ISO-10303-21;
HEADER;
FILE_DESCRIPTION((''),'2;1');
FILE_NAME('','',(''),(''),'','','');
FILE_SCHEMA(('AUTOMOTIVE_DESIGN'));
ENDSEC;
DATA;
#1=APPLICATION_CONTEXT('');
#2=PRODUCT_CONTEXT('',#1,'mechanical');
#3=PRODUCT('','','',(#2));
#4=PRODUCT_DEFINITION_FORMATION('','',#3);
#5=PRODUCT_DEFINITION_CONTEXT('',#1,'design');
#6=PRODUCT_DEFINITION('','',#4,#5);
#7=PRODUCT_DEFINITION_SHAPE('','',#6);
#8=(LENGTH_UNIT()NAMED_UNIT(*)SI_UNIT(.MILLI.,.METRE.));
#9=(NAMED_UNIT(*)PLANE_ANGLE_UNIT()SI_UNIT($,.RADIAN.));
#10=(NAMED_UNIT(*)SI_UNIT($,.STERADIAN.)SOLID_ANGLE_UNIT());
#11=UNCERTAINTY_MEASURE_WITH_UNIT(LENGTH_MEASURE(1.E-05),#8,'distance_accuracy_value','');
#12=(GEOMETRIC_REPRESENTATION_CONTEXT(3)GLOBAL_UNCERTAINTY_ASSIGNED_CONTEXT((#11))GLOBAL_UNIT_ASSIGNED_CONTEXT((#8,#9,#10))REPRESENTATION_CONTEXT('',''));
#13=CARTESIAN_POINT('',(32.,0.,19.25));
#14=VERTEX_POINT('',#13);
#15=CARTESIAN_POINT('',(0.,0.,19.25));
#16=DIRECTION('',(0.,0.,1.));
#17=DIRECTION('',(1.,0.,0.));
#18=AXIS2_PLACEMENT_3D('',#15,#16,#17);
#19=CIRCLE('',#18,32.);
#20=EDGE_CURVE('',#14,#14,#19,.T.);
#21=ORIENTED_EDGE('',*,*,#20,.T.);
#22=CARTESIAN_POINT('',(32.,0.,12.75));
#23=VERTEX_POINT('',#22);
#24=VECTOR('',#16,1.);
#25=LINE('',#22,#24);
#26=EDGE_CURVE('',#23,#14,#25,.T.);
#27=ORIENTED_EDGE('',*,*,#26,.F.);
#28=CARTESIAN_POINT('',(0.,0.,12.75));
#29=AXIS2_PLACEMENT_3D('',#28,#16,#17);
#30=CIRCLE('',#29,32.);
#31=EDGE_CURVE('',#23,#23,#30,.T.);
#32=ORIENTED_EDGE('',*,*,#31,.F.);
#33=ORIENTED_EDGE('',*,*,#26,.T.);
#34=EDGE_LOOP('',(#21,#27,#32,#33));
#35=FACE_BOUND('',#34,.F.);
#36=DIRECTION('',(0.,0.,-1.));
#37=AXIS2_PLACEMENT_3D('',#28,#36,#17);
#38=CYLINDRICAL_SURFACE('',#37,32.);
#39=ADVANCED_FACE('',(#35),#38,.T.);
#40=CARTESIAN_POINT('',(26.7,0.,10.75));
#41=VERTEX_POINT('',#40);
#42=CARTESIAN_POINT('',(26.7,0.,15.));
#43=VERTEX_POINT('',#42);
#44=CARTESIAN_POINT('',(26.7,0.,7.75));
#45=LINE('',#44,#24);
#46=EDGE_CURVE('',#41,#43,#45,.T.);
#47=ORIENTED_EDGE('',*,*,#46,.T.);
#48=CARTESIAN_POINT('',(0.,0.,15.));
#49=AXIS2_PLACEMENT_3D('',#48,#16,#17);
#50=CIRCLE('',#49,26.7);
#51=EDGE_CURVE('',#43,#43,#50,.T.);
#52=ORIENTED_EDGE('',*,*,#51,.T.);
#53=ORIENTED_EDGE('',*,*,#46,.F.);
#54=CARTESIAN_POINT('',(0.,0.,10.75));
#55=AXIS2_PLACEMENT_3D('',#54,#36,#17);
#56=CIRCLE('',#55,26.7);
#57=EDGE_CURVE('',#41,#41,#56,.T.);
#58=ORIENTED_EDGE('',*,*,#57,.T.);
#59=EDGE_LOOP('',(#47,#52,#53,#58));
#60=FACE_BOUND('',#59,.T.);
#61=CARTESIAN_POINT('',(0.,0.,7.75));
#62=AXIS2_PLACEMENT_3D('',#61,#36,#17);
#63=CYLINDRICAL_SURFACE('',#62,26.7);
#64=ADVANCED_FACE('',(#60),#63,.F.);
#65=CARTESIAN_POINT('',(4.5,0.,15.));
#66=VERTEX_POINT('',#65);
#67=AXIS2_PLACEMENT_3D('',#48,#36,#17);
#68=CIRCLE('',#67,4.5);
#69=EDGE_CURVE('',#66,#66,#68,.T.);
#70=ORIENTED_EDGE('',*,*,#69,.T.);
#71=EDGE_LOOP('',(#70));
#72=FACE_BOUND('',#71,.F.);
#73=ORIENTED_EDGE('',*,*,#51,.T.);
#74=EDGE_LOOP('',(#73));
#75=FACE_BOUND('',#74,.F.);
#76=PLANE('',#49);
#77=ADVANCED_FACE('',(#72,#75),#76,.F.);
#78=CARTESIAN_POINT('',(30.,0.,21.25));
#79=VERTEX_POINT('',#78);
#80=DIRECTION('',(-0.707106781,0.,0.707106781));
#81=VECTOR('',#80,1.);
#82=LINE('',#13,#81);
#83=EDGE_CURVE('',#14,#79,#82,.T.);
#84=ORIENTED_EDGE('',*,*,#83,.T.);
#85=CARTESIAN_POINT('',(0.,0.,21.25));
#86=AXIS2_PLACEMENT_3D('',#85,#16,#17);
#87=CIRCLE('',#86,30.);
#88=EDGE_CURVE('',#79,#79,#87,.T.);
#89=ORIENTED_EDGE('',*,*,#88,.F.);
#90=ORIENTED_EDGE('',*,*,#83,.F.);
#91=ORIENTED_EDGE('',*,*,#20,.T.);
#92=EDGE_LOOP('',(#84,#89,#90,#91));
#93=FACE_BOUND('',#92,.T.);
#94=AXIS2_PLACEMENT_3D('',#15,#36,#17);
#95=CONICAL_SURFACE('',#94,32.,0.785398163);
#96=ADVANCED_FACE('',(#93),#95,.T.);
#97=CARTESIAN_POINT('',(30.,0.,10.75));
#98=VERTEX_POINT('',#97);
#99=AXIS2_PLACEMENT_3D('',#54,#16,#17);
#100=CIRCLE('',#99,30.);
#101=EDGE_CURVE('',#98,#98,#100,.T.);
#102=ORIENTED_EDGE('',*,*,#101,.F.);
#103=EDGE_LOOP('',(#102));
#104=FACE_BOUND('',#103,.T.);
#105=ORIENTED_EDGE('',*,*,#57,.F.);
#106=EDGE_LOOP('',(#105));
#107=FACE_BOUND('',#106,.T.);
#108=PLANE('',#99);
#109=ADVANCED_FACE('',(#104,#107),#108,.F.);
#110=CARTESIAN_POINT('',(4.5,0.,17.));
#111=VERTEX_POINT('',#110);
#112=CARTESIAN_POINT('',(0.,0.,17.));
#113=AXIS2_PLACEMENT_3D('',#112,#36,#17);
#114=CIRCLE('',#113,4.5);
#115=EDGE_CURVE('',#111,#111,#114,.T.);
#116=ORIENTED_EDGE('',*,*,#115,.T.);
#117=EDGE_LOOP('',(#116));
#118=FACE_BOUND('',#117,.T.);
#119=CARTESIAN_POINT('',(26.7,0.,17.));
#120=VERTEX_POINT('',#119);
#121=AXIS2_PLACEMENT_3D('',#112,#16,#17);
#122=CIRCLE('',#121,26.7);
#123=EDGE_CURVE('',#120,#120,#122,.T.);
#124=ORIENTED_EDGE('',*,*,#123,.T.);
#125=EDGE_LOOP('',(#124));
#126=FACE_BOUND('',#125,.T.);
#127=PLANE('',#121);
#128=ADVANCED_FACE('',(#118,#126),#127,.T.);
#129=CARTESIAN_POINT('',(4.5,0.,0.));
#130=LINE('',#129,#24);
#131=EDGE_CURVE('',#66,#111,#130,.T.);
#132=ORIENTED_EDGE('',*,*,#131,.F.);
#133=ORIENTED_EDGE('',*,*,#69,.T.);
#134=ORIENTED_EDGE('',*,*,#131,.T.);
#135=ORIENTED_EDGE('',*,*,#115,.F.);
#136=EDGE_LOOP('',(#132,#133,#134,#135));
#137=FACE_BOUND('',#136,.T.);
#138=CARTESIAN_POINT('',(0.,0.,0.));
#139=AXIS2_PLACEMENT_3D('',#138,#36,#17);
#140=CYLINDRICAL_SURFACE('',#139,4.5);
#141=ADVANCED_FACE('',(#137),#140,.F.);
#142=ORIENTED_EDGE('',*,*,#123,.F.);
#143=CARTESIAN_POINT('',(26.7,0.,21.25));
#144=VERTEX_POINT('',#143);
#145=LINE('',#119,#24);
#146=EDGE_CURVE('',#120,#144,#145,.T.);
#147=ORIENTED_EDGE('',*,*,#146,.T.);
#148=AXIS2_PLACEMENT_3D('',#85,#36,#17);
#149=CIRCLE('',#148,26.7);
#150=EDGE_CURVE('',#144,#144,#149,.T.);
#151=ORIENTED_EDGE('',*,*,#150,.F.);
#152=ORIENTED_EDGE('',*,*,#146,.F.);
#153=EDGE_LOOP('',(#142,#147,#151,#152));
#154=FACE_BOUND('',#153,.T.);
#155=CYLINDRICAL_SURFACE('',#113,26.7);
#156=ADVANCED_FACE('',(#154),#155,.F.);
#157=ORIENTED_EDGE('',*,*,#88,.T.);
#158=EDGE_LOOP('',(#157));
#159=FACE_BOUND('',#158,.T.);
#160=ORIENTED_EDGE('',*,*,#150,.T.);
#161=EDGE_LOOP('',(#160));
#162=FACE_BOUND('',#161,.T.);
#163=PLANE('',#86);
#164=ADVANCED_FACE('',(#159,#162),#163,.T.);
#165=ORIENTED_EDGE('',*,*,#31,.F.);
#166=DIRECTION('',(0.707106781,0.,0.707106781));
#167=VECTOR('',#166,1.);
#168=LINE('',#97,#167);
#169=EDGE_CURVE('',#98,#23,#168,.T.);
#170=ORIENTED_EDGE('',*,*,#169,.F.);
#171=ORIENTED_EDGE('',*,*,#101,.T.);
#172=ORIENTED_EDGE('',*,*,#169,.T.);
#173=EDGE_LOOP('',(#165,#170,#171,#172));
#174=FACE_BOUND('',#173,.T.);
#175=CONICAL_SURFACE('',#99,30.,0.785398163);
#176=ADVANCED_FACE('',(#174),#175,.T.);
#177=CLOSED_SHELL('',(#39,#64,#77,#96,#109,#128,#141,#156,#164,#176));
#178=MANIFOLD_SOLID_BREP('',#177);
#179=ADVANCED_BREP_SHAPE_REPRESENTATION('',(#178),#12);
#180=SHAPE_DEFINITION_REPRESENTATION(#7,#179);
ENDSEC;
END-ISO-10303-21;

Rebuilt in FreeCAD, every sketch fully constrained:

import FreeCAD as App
import Part
import Sketcher

V = App.Vector
Q = App.Units.Quantity

doc = App.newDocument("Part")
body = doc.addObject("PartDesign::Body", "Body")

sketch1 = body.newObject("Sketcher::SketchObject", "Sketch")
sketch1.AttachmentSupport = (doc.getObject("XY_Plane"), [""])
sketch1.MapMode = "FlatFace"
sketch1.AttachmentOffset = App.Placement(V(0, 0, 7.75), App.Rotation())
sketch1.addGeometry(Part.Circle(V(0, 0, 0), V(0, 0, 1), 26.7), False)
sketch1.addConstraint([
    Sketcher.Constraint("Coincident", 0, 3, -1, 1),
    Sketcher.Constraint("Diameter", 0, Q("53.4 mm")),
])
pad1 = body.newObject("PartDesign::Pad", "Pad")
pad1.Profile = sketch1
pad1.Length = 7.25
body2 = doc.addObject("PartDesign::Body", "Body001")

sketch2 = body2.newObject("Sketcher::SketchObject", "Sketch001")
sketch2.AttachmentSupport = (doc.getObject("XY_Plane001"), [""])
sketch2.MapMode = "FlatFace"
sketch2.addGeometry(Part.Circle(V(0, 0, 0), V(0, 0, 1), 4.5), False)
sketch2.addConstraint([
    Sketcher.Constraint("Coincident", 0, 3, -1, 1),
    Sketcher.Constraint("Diameter", 0, Q("9 mm")),
])
pad2 = body2.newObject("PartDesign::Pad", "Pad001")
pad2.Profile = sketch2
pad2.Length = 32
body3 = doc.addObject("PartDesign::Body", "Body002")
body3.AllowCompound = True

sketch3 = body3.newObject("Sketcher::SketchObject", "Sketch002")
sketch3.AttachmentSupport = (doc.getObject("XY_Plane002"), [""])
sketch3.MapMode = "FlatFace"
sketch3.AttachmentOffset = App.Placement(V(0, 0, 17), App.Rotation())
sketch3.addGeometry(Part.Circle(V(0, 0, 0), V(0, 0, 1), 26.7), False)
sketch3.addConstraint([
    Sketcher.Constraint("Coincident", 0, 3, -1, 1),
    Sketcher.Constraint("Diameter", 0, Q("53.4 mm")),
])
pad3 = body3.newObject("PartDesign::Pad", "Pad002")
pad3.Profile = sketch3
pad3.Length = 7.25
doc.recompute()

boolean = body3.newObject("PartDesign::Boolean", "Boolean")
boolean.Type = "Fuse"
boolean.addObjects([body])
doc.recompute()

boolean2 = body3.newObject("PartDesign::Boolean", "Boolean001")
boolean2.Type = "Fuse"
boolean2.addObjects([body2])
body4 = doc.addObject("PartDesign::Body", "Body003")

sketch4 = body4.newObject("Sketcher::SketchObject", "Sketch003")
sketch4.AttachmentSupport = (doc.getObject("XZ_Plane003"), [""])
sketch4.MapMode = "FlatFace"
sketch4.addGeometry([
    Part.LineSegment(V(0, 8.5, 0), V(32, 8.5, 0)),
    Part.LineSegment(V(32, 8.5, 0), V(30, 10.5, 0)),
    Part.LineSegment(V(30, 10.5, 0), V(0, 10.5, 0)),
    Part.LineSegment(V(0, 10.5, 0), V(0, 8.5, 0)),
], False)
sketch4.addConstraint([
    Sketcher.Constraint("Coincident", 0, 2, 1, 1),
    Sketcher.Constraint("Coincident", 1, 2, 2, 1),
    Sketcher.Constraint("Coincident", 2, 2, 3, 1),
    Sketcher.Constraint("Coincident", 3, 2, 0, 1),
    Sketcher.Constraint("Horizontal", 0),
    Sketcher.Constraint("Horizontal", 2),
    Sketcher.Constraint("Vertical", 3),
    Sketcher.Constraint("PointOnObject", 2, 2, -2),
    Sketcher.Constraint("DistanceX", 0, 1, 0, 2, Q("32 mm")),
    Sketcher.Constraint("DistanceX", 2, 2, 2, 1, Q("30 mm")),
    Sketcher.Constraint("DistanceY", 3, 2, 3, 1, Q("2 mm")),
    Sketcher.Constraint("DistanceY", -1, 1, 0, 2, Q("8.5 mm")),
])
revolution = body4.newObject("PartDesign::Revolution", "Revolution")
revolution.Profile = sketch4
revolution.ReferenceAxis = (sketch4, ["V_Axis"])
revolution.Angle = 360
body5 = doc.addObject("PartDesign::Body", "Body004")

sketch5 = body5.newObject("Sketcher::SketchObject", "Sketch004")
sketch5.AttachmentSupport = (doc.getObject("XZ_Plane004"), [""])
sketch5.MapMode = "FlatFace"
sketch5.addGeometry([
    Part.LineSegment(V(0, 0, 0), V(30, 0, 0)),
    Part.LineSegment(V(30, 0, 0), V(32, 2, 0)),
    Part.LineSegment(V(32, 2, 0), V(0, 2, 0)),
    Part.LineSegment(V(0, 2, 0), V(0, 0, 0)),
], False)
sketch5.addConstraint([
    Sketcher.Constraint("Coincident", 0, 2, 1, 1),
    Sketcher.Constraint("Coincident", 1, 2, 2, 1),
    Sketcher.Constraint("Coincident", 2, 2, 3, 1),
    Sketcher.Constraint("Coincident", 3, 2, 0, 1),
    Sketcher.Constraint("Horizontal", 0),
    Sketcher.Constraint("Horizontal", 2),
    Sketcher.Constraint("Vertical", 3),
    Sketcher.Constraint("Coincident", 3, 2, -1, 1),
    Sketcher.Constraint("DistanceX", 0, 1, 0, 2, Q("30 mm")),
    Sketcher.Constraint("DistanceX", 2, 2, 2, 1, Q("32 mm")),
    Sketcher.Constraint("DistanceY", 3, 2, 3, 1, Q("2 mm")),
])
revolution2 = body5.newObject("PartDesign::Revolution", "Revolution001")
revolution2.Profile = sketch5
revolution2.ReferenceAxis = (sketch5, ["V_Axis"])
revolution2.Angle = 360
body6 = doc.addObject("PartDesign::Body", "Body005")

sketch6 = body6.newObject("Sketcher::SketchObject", "Sketch005")
sketch6.AttachmentSupport = (doc.getObject("XY_Plane005"), [""])
sketch6.MapMode = "FlatFace"
sketch6.AttachmentOffset = App.Placement(V(0, 0, 2), App.Rotation())
sketch6.addGeometry(Part.Circle(V(0, 0, 0), V(0, 0, 1), 32), False)
sketch6.addConstraint([
    Sketcher.Constraint("Coincident", 0, 3, -1, 1),
    Sketcher.Constraint("Diameter", 0, Q("64 mm")),
])
pad4 = body6.newObject("PartDesign::Pad", "Pad003")
pad4.Profile = sketch6
pad4.Length = 6.5
doc.recompute()

boolean3 = body6.newObject("PartDesign::Boolean", "Boolean002")
boolean3.Type = "Fuse"
boolean3.addObjects([body4])
doc.recompute()

boolean4 = body6.newObject("PartDesign::Boolean", "Boolean003")
boolean4.Type = "Fuse"
boolean4.addObjects([body5])
body7 = doc.addObject("PartDesign::Body", "Body006")
doc.recompute()

body6.Placement = App.Placement(V(0, 0, 10.75), App.Rotation(V(0, 0, 1), 0))
boolean5 = body7.newObject("PartDesign::Boolean", "Boolean004")
boolean5.Type = "Fuse"
boolean5.addObjects([body6])
doc.recompute()

boolean6 = body7.newObject("PartDesign::Boolean", "Boolean005")
boolean6.Type = "Cut"
boolean6.addObjects([body3])

doc.recompute()
